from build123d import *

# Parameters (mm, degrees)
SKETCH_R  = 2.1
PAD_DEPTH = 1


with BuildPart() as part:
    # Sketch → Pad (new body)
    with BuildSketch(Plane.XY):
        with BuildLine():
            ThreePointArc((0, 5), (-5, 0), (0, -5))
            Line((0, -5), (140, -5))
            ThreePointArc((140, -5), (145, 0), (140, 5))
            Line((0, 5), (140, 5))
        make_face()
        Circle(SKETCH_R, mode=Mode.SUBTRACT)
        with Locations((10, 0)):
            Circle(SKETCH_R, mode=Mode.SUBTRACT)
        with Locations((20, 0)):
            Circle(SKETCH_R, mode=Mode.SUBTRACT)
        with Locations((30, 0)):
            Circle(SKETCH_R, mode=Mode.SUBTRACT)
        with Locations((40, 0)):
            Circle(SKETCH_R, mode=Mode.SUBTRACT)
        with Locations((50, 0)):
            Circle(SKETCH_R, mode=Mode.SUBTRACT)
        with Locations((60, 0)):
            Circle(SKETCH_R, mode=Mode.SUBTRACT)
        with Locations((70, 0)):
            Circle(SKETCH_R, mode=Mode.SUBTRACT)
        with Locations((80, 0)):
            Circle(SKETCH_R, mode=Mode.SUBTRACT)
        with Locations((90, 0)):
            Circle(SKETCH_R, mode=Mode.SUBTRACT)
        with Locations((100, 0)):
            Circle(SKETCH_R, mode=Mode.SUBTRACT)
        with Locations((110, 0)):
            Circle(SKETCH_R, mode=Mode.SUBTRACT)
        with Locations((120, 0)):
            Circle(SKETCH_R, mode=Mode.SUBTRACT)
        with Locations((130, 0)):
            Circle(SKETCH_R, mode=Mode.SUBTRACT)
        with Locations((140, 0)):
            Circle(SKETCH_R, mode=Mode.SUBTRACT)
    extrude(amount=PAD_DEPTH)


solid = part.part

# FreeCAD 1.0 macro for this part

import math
import FreeCAD as App
import Part
import Sketcher
from FreeCAD import Vector

doc = App.newDocument("Part")
body = doc.addObject("PartDesign::Body", "Body")

sketch1 = body.newObject("Sketcher::SketchObject", "Sketch")
sketch1.AttachmentSupport = (doc.getObject("XY_Plane"), [""])
sketch1.MapMode = "FlatFace"
sketch1.addGeometry([
    Part.ArcOfCircle(Part.Circle(Vector(0, 0, 0), Vector(0, 0, 1), 5), math.radians(90), math.radians(270)),
    Part.LineSegment(Vector(0, -5, 0), Vector(140, -5, 0)),
    Part.ArcOfCircle(Part.Circle(Vector(140, 0, 0), Vector(0, 0, 1), 5), math.radians(-90), math.radians(90)),
    Part.LineSegment(Vector(140, 5, 0), Vector(0, 5, 0)),
    Part.Circle(Vector(0, 0, 0), Vector(0, 0, 1), 2.1),
    Part.Circle(Vector(10, 0, 0), Vector(0, 0, 1), 2.1),
    Part.Circle(Vector(20, 0, 0), Vector(0, 0, 1), 2.1),
    Part.Circle(Vector(30, 0, 0), Vector(0, 0, 1), 2.1),
    Part.Circle(Vector(40, 0, 0), Vector(0, 0, 1), 2.1),
    Part.Circle(Vector(50, 0, 0), Vector(0, 0, 1), 2.1),
    Part.Circle(Vector(60, 0, 0), Vector(0, 0, 1), 2.1),
    Part.Circle(Vector(70, 0, 0), Vector(0, 0, 1), 2.1),
    Part.Circle(Vector(80, 0, 0), Vector(0, 0, 1), 2.1),
    Part.Circle(Vector(90, 0, 0), Vector(0, 0, 1), 2.1),
    Part.Circle(Vector(100, 0, 0), Vector(0, 0, 1), 2.1),
    Part.Circle(Vector(110, 0, 0), Vector(0, 0, 1), 2.1),
    Part.Circle(Vector(120, 0, 0), Vector(0, 0, 1), 2.1),
    Part.Circle(Vector(130, 0, 0), Vector(0, 0, 1), 2.1),
    Part.Circle(Vector(140, 0, 0), Vector(0, 0, 1), 2.1),
], False)
sketch1.addConstraint([
    Sketcher.Constraint("Tangent", 0, 2, 1, 1),
    Sketcher.Constraint("Tangent", 1, 2, 2, 1),
    Sketcher.Constraint("Tangent", 2, 2, 3, 1),
    Sketcher.Constraint("Tangent", 3, 2, 0, 1),
    Sketcher.Constraint("Horizontal", 1),
    Sketcher.Constraint("Horizontal", 3),
    Sketcher.Constraint("Coincident", 0, 3, -1, 1),
    Sketcher.Constraint("Coincident", 4, 3, -1, 1),
    Sketcher.Constraint("Coincident", 18, 3, 2, 3),
    Sketcher.Constraint("Equal", 4, 5),
    Sketcher.Constraint("Equal", 5, 6),
    Sketcher.Constraint("Equal", 6, 7),
    Sketcher.Constraint("Equal", 7, 8),
    Sketcher.Constraint("Equal", 8, 9),
    Sketcher.Constraint("Equal", 9, 10),
    Sketcher.Constraint("Equal", 10, 11),
    Sketcher.Constraint("Equal", 11, 12),
    Sketcher.Constraint("Equal", 12, 13),
    Sketcher.Constraint("Equal", 13, 14),
    Sketcher.Constraint("Equal", 14, 15),
    Sketcher.Constraint("Equal", 15, 16),
    Sketcher.Constraint("Equal", 16, 17),
    Sketcher.Constraint("Equal", 17, 18),
    Sketcher.Constraint("PointOnObject", 5, 3, -1),
    Sketcher.Constraint("PointOnObject", 6, 3, -1),
    Sketcher.Constraint("PointOnObject", 7, 3, -1),
    Sketcher.Constraint("PointOnObject", 8, 3, -1),
    Sketcher.Constraint("PointOnObject", 9, 3, -1),
    Sketcher.Constraint("PointOnObject", 10, 3, -1),
    Sketcher.Constraint("PointOnObject", 11, 3, -1),
    Sketcher.Constraint("PointOnObject", 12, 3, -1),
    Sketcher.Constraint("PointOnObject", 13, 3, -1),
    Sketcher.Constraint("PointOnObject", 14, 3, -1),
    Sketcher.Constraint("PointOnObject", 15, 3, -1),
    Sketcher.Constraint("PointOnObject", 16, 3, -1),
    Sketcher.Constraint("PointOnObject", 17, 3, -1),
    Sketcher.Constraint("Radius", 0, 5.0),
    Sketcher.Constraint("Diameter", 4, 4.2),
    Sketcher.Constraint("DistanceX", 1, 1, 1, 2, 140.0),
    Sketcher.Constraint("DistanceX", -1, 1, 5, 3, 10.0),
    Sketcher.Constraint("DistanceX", -1, 1, 6, 3, 20.0),
    Sketcher.Constraint("DistanceX", -1, 1, 7, 3, 30.0),
    Sketcher.Constraint("DistanceX", -1, 1, 8, 3, 40.0),
    Sketcher.Constraint("DistanceX", -1, 1, 9, 3, 50.0),
    Sketcher.Constraint("DistanceX", -1, 1, 10, 3, 60.0),
    Sketcher.Constraint("DistanceX", -1, 1, 11, 3, 70.0),
    Sketcher.Constraint("DistanceX", -1, 1, 12, 3, 80.0),
    Sketcher.Constraint("DistanceX", -1, 1, 13, 3, 90.0),
    Sketcher.Constraint("DistanceX", -1, 1, 14, 3, 100.0),
    Sketcher.Constraint("DistanceX", -1, 1, 15, 3, 110.0),
    Sketcher.Constraint("DistanceX", -1, 1, 16, 3, 120.0),
    Sketcher.Constraint("DistanceX", -1, 1, 17, 3, 130.0),
])
pad1 = body.newObject("PartDesign::Pad", "Pad")
pad1.Profile = sketch1
pad1.Length = 1

doc.recompute()
